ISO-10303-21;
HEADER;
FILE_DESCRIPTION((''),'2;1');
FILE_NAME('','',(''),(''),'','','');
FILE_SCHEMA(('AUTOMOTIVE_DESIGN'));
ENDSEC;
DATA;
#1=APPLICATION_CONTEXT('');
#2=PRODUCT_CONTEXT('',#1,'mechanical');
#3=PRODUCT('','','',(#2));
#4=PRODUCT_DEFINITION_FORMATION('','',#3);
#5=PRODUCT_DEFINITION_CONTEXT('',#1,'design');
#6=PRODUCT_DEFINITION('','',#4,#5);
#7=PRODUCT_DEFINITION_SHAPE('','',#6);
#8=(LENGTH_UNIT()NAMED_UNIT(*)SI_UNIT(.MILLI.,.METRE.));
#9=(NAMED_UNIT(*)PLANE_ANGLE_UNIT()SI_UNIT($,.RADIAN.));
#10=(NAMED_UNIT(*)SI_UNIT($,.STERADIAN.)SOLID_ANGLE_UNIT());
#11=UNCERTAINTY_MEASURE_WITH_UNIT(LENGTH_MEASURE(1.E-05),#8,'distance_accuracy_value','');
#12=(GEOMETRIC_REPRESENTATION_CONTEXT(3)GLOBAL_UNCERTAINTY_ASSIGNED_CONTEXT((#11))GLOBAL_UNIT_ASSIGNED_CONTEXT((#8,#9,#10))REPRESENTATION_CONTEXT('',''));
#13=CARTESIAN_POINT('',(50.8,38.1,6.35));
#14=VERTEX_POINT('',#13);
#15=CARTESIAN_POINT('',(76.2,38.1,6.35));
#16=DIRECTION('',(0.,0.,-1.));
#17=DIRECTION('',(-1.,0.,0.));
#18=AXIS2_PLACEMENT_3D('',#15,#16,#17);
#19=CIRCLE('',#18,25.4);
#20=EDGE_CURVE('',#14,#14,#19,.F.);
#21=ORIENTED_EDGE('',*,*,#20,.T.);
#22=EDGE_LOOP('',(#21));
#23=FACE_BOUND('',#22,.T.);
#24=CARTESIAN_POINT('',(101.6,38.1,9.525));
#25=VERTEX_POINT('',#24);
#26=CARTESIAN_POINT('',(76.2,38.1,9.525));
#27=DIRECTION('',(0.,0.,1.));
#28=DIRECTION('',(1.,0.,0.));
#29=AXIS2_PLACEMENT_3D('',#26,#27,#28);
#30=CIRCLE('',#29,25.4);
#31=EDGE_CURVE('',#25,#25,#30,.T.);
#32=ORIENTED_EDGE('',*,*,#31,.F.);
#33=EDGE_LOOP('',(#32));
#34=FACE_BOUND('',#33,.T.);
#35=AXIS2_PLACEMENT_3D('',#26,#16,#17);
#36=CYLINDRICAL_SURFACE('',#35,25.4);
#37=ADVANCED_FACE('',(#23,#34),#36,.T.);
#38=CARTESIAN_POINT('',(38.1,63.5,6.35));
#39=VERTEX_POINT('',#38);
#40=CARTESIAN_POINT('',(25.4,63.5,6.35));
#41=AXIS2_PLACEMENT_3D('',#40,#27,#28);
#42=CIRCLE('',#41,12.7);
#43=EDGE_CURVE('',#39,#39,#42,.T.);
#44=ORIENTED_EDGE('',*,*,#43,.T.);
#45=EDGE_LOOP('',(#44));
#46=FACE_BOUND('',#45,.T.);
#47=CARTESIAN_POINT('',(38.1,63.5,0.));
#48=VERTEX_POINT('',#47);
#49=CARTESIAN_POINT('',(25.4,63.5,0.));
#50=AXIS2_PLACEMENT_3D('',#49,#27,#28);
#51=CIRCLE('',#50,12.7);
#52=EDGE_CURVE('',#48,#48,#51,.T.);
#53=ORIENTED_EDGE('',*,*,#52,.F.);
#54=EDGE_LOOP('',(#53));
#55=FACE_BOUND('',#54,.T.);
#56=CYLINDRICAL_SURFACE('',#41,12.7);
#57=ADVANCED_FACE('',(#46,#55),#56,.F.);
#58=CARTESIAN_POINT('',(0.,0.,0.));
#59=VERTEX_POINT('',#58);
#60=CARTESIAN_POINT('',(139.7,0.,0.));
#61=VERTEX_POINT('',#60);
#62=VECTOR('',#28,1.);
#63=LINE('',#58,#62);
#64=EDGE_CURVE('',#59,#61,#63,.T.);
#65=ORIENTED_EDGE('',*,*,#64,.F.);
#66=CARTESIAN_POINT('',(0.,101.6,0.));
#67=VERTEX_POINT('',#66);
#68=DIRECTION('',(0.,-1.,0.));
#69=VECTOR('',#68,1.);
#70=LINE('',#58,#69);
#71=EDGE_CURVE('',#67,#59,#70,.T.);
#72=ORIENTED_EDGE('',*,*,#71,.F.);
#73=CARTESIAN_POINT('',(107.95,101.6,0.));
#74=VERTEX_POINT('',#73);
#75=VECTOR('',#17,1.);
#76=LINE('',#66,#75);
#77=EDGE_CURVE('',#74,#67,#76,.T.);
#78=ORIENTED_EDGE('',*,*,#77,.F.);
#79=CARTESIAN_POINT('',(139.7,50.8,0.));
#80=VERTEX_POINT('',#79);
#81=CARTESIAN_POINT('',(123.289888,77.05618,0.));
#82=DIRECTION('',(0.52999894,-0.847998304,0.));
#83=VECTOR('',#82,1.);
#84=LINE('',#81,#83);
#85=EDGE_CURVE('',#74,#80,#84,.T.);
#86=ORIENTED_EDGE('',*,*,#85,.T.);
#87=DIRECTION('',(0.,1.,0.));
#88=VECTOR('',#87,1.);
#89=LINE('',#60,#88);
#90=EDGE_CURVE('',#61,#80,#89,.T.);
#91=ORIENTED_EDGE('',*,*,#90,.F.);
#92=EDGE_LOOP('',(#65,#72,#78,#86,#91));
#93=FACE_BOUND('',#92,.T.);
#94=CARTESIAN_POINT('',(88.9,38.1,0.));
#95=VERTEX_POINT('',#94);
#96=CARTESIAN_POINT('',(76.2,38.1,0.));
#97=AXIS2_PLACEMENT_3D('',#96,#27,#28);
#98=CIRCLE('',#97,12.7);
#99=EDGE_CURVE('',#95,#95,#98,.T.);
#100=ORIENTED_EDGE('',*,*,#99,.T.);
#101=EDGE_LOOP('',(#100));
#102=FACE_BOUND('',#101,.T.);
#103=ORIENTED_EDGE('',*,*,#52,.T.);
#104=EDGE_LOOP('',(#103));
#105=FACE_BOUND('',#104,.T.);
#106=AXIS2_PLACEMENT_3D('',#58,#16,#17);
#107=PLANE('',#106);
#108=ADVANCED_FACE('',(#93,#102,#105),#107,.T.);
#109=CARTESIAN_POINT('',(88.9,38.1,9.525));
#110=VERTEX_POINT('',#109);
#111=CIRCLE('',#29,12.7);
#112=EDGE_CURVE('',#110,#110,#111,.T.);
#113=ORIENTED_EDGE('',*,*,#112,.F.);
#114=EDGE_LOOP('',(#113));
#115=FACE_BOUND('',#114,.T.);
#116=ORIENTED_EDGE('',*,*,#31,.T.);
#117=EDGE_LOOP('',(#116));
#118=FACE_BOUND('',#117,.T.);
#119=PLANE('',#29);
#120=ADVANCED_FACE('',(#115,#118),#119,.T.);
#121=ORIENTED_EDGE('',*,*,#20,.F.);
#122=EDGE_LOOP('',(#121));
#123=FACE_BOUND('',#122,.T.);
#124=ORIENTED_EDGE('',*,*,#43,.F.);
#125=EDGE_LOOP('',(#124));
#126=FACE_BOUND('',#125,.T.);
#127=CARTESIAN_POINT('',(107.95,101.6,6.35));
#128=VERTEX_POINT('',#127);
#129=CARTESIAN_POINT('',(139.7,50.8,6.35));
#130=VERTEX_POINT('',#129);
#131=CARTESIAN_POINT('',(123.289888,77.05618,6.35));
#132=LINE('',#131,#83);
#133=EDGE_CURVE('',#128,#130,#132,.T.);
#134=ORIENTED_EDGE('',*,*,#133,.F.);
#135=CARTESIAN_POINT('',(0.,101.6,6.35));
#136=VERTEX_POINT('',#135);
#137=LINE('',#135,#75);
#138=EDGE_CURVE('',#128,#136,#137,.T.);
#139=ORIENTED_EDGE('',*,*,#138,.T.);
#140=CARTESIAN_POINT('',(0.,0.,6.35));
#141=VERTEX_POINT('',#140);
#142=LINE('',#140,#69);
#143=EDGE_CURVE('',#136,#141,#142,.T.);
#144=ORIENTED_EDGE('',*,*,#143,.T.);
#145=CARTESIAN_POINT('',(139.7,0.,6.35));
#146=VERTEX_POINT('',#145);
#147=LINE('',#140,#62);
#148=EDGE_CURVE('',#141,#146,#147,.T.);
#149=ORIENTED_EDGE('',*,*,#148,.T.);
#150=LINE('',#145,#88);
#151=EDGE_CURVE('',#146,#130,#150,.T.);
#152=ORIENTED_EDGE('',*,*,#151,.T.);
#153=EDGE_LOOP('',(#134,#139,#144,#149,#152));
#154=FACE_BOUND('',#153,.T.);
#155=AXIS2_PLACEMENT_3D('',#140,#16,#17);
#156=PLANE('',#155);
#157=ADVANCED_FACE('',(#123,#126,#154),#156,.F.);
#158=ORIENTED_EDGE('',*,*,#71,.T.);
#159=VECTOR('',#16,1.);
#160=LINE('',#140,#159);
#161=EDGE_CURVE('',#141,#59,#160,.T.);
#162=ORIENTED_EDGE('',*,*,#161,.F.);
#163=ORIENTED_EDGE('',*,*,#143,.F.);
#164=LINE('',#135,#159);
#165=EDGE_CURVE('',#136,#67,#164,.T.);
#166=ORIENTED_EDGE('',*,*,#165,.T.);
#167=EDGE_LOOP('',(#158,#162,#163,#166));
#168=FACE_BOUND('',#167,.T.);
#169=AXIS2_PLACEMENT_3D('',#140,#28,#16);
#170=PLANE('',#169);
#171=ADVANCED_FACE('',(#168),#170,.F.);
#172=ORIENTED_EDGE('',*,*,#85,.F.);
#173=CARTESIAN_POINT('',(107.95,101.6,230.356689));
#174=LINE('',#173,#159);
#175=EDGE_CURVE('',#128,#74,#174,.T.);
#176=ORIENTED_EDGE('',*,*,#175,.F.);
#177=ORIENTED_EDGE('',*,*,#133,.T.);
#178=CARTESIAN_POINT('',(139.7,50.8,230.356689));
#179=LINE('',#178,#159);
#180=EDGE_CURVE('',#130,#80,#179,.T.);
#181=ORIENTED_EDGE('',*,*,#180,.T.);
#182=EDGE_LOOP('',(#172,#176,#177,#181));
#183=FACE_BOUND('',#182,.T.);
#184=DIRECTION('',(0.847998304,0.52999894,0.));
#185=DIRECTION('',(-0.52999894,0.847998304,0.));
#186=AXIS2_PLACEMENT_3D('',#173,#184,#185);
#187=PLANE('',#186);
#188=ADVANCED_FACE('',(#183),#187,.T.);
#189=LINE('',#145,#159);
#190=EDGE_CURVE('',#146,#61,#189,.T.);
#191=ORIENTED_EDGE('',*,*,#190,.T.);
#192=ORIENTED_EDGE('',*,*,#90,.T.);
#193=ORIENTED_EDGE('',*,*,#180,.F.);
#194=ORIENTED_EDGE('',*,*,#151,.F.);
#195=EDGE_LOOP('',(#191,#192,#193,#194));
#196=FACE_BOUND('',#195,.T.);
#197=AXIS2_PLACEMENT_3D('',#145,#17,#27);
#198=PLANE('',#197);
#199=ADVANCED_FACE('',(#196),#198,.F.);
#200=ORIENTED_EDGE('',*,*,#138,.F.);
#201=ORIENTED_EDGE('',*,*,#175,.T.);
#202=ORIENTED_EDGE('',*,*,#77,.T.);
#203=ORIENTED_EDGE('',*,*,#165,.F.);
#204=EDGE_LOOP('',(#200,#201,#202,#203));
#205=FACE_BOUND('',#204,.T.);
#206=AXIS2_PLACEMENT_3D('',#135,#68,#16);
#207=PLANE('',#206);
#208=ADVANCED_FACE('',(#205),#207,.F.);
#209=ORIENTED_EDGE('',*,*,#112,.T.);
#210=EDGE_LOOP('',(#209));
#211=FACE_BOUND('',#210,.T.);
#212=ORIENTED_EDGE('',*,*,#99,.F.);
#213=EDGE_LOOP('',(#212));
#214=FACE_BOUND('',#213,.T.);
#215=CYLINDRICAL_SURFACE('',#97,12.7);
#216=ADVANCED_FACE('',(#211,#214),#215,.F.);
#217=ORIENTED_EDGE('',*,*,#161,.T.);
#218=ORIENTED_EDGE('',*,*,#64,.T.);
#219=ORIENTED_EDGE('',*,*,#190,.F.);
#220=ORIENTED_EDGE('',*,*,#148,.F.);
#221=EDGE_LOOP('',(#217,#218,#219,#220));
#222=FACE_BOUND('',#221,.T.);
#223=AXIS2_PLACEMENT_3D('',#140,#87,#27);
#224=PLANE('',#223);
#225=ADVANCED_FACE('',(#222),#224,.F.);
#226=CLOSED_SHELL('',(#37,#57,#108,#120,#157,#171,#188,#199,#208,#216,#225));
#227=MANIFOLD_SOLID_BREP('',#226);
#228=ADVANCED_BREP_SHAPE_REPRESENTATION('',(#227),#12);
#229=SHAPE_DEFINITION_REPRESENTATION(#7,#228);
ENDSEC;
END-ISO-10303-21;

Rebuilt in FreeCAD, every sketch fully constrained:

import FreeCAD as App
import Part
import Sketcher

V = App.Vector
Q = App.Units.Quantity


def add_polygon(sketch, points):
    """Adds a closed chain of lines whose ends are joined by coincident constraints."""
    first, n = sketch.GeometryCount, len(points)
    for a, b in zip(points, points[1:] + points[:1]):
        sketch.addGeometry(Part.LineSegment(App.Vector(*a, 0), App.Vector(*b, 0)), False)
    for i in range(n):
        sketch.addConstraint(Sketcher.Constraint("Coincident", first + i, 2, first + (i + 1) % n, 1))

doc = App.newDocument("Part")
body = doc.addObject("PartDesign::Body", "Body")

# Sketch on XY plane
sketch1 = body.newObject("Sketcher::SketchObject", "Sketch")
sketch1.AttachmentSupport = (doc.getObject("XY_Plane"), [""])
sketch1.MapMode = "FlatFace"
add_polygon(sketch1, [(0, 101.6), (0, 0), (139.7, 0), (139.7, 101.6)])  # lines 0-3
sketch1.addConstraint([
    Sketcher.Constraint("Vertical", 0),
    Sketcher.Constraint("Horizontal", 1),
    Sketcher.Constraint("Vertical", 2),
    Sketcher.Constraint("Horizontal", 3),
    Sketcher.Constraint("Coincident", 0, 2, -1, 1),
    Sketcher.Constraint("DistanceY", 0, 2, 0, 1, Q("4 in")),
    Sketcher.Constraint("DistanceX", 1, 1, 1, 2, Q("5.5 in")),
])
pad1 = body.newObject("PartDesign::Pad", "Pad")
pad1.Profile = sketch1
pad1.Length = Q("0.25 in")

# Sketch on XY plane
sketch2 = body.newObject("Sketcher::SketchObject", "Sketch001")
sketch2.AttachmentSupport = (doc.getObject("XY_Plane"), [""])
sketch2.MapMode = "FlatFace"
sketch2.AttachmentOffset = App.Placement(V(0, 0, 0.25 * 25.4), App.Rotation())
add_polygon(sketch2, [(-54.918344, 362.189351), (302.568344, -209.789351), (823.747047, 115.947338), (466.260358, 687.92604)])  # lines 0-3
sketch2.addConstraint([
    Sketcher.Constraint("Perpendicular", 0, 1),
    Sketcher.Constraint("Perpendicular", 1, 2),
    Sketcher.Constraint("Perpendicular", 2, 3),
    Sketcher.Constraint("DistanceY", 0, 2, -1, 1, 209.789351),
    Sketcher.Constraint("DistanceY", -1, 1, 2, 2, 687.92604),
    Sketcher.Constraint("DistanceY", -1, 1, 3, 2, 362.189351),
    Sketcher.Constraint("DistanceX", 2, 2, 1, 2, 357.486689),
    Sketcher.Constraint("DistanceX", -1, 1, 0, 2, 302.568344),
])
pocket1 = body.newObject("PartDesign::Pocket", "Pocket")
pocket1.Profile = sketch2
pocket1.Type = "ThroughAll"
pocket1.Midplane = True

# Sketch on XY plane
sketch3 = body.newObject("Sketcher::SketchObject", "Sketch002")
sketch3.AttachmentSupport = (doc.getObject("XY_Plane"), [""])
sketch3.MapMode = "FlatFace"
sketch3.AttachmentOffset = App.Placement(V(0, 0, 0.25 * 25.4), App.Rotation())
sketch3.addGeometry(Part.Circle(V(25.4, 63.5, 0), V(0, 0, 1), 12.7), False)
sketch3.addConstraint([
    Sketcher.Constraint("Diameter", 0, Q("1 in")),
    Sketcher.Constraint("DistanceX", -1, 1, 0, 3, Q("1 in")),
    Sketcher.Constraint("DistanceY", -1, 1, 0, 3, Q("2.5 in")),
])
doc.recompute()
hole = body.newObject("PartDesign::Hole", "Hole")
hole.Profile = sketch3
hole.ThreadType = "None"
hole.Diameter = Q("1 in")
hole.DepthType = "ThroughAll"

# Sketch on XY plane
sketch4 = body.newObject("Sketcher::SketchObject", "Sketch003")
sketch4.AttachmentSupport = (doc.getObject("XY_Plane"), [""])
sketch4.MapMode = "FlatFace"
sketch4.AttachmentOffset = App.Placement(V(0, 0, 0.25 * 25.4), App.Rotation())
sketch4.addGeometry(Part.Circle(V(76.2, 38.1, 0), V(0, 0, 1), 25.4), False)
sketch4.addConstraint([
    Sketcher.Constraint("Diameter", 0, Q("2 in")),
    Sketcher.Constraint("DistanceX", -1, 1, 0, 3, Q("3 in")),
    Sketcher.Constraint("DistanceY", -1, 1, 0, 3, Q("1.5 in")),
])
pad2 = body.newObject("PartDesign::Pad", "Pad001")
pad2.Profile = sketch4
pad2.Length = Q("0.125 in")

# Sketch on XY plane
sketch5 = body.newObject("Sketcher::SketchObject", "Sketch004")
sketch5.AttachmentSupport = (doc.getObject("XY_Plane"), [""])
sketch5.MapMode = "FlatFace"
sketch5.AttachmentOffset = App.Placement(V(0, 0, 0.375 * 25.4), App.Rotation())
sketch5.addGeometry(Part.Circle(V(76.2, 38.1, 0), V(0, 0, 1), 12.7), False)
sketch5.addConstraint([
    Sketcher.Constraint("Diameter", 0, Q("1 in")),
    Sketcher.Constraint("DistanceX", -1, 1, 0, 3, Q("3 in")),
    Sketcher.Constraint("DistanceY", -1, 1, 0, 3, Q("1.5 in")),
])
pocket2 = body.newObject("PartDesign::Pocket", "Pocket001")
pocket2.Profile = sketch5
pocket2.Type = "ThroughAll"

doc.recompute()
